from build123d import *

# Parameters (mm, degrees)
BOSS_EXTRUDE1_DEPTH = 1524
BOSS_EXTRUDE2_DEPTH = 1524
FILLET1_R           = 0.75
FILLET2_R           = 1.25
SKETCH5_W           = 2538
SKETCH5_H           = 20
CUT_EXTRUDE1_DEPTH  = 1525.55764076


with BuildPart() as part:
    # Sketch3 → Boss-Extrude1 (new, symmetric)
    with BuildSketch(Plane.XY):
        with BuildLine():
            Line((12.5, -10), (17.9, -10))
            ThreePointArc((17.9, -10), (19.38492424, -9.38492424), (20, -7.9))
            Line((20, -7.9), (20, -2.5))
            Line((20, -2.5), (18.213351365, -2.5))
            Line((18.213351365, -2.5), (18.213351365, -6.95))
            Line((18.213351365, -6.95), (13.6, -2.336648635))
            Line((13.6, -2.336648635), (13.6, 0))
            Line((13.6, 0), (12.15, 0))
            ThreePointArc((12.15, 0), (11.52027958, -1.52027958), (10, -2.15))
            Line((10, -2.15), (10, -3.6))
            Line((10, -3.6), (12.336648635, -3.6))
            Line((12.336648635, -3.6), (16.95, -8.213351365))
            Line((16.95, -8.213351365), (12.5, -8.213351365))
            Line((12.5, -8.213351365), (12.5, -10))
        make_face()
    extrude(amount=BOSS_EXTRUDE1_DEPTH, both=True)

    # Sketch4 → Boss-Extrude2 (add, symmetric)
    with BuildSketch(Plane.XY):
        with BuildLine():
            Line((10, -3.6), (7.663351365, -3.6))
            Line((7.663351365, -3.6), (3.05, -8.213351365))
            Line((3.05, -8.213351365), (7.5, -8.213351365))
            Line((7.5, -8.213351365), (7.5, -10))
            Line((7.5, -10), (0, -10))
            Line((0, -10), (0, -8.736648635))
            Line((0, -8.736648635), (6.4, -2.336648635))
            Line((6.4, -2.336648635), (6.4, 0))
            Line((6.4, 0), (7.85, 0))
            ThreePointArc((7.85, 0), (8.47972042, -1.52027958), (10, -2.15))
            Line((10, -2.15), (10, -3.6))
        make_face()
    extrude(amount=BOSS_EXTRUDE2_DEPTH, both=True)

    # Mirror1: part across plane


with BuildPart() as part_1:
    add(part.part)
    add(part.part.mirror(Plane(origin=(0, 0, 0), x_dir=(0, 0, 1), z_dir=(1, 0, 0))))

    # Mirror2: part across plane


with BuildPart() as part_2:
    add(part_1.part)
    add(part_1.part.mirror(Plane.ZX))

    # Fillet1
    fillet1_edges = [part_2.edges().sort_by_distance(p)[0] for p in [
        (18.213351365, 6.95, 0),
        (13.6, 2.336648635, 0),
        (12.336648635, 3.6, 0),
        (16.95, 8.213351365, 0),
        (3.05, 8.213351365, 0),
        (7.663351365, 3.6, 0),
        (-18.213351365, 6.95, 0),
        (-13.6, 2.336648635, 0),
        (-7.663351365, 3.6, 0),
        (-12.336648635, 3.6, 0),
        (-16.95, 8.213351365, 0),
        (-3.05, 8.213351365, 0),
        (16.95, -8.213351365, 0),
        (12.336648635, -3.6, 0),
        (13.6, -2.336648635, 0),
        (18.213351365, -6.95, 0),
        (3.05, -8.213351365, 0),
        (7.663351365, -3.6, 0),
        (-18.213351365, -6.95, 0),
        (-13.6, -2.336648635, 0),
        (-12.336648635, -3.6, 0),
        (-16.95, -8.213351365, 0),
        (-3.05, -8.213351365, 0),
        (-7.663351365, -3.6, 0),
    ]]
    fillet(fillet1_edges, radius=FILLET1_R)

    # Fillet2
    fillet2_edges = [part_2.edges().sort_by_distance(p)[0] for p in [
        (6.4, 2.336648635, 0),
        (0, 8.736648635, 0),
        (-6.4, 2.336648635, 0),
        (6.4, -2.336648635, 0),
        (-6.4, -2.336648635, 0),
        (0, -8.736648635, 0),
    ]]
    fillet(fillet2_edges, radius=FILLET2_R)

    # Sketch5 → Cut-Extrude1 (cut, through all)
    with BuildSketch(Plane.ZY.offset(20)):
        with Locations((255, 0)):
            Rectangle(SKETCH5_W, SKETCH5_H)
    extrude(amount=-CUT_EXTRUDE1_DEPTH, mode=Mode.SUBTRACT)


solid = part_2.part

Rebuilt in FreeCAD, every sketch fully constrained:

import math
import FreeCAD as App
import Part
import Sketcher

V = App.Vector
Q = App.Units.Quantity


def edges_at(feature, points):
    """Names of the edges that pass closest to the given points."""
    edges = feature.Shape.Edges
    near = lambda p: min(range(len(edges)), key=lambda i: edges[i].distToShape(Part.Vertex(*p))[0])
    return sorted({f"Edge{near(p) + 1}" for p in points})


def add_polygon(sketch, points):
    """Adds a closed chain of lines whose ends are joined by coincident constraints."""
    first, n = sketch.GeometryCount, len(points)
    for a, b in zip(points, points[1:] + points[:1]):
        sketch.addGeometry(Part.LineSegment(App.Vector(*a, 0), App.Vector(*b, 0)), False)
    for i in range(n):
        sketch.addConstraint(Sketcher.Constraint("Coincident", first + i, 2, first + (i + 1) % n, 1))

doc = App.newDocument("Part")
params = doc.addObject("Spreadsheet::Sheet", "Params")
for row, (alias, value) in enumerate([
    ("sketch1_radius", "2.1 mm"),
    ("sketch1_radius2", "2.15 mm"),
    ("sketch1_width", "5.4 mm"),
    ("sketch1_width2", "1.45 mm"),
    ("sketch1_width3", "4.45 mm"),
    ("pad1_length", "3048 mm"),
    ("sketch2_radius", "2.15 mm"),
    ("sketch2_width", "7.5 mm"),
    ("sketch2_width2", "1.45 mm"),
    ("sketch2_width3", "4.45 mm"),
    ("pad2_length", "3048 mm"),
    ("fillet_radius", "0.75 mm"),
    ("fillet2_radius", "1.25 mm"),
    ("sketch3_width", "20 mm"),
    ("sketch3_height", "2538 mm"),
], start=1):
    params.set(f"A{row}", alias)
    params.set(f"B{row}", "=" + value)
    params.setAlias(f"B{row}", alias)

body = doc.addObject("PartDesign::Body", "Body")

# Sketch on XY plane
sketch1 = body.newObject("Sketcher::SketchObject", "Sketch")
sketch1.AttachmentSupport = (doc.getObject("XY_Plane"), [""])
sketch1.MapMode = "FlatFace"
sketch1.addGeometry(Part.LineSegment(V(12.5, -10, 0), V(17.9, -10, 0)), False)
sketch1.addGeometry(Part.ArcOfCircle(Part.Circle(V(17.9, -7.9, 0), V(0, 0, 1), 2.1), math.radians(-90), math.radians(0)), False)
sketch1.addGeometry(Part.LineSegment(V(20, -7.9, 0), V(20, -2.5, 0)), False)
sketch1.addGeometry(Part.LineSegment(V(20, -2.5, 0), V(18.213351, -2.5, 0)), False)
sketch1.addGeometry(Part.LineSegment(V(18.213351, -2.5, 0), V(18.213351, -6.95, 0)), False)
sketch1.addGeometry(Part.LineSegment(V(18.213351, -6.95, 0), V(13.6, -2.336649, 0)), False)
sketch1.addGeometry(Part.LineSegment(V(13.6, -2.336649, 0), V(13.6, 0, 0)), False)
sketch1.addGeometry(Part.LineSegment(V(13.6, 0, 0), V(12.15, 0, 0)), False)
sketch1.addGeometry(Part.ArcOfCircle(Part.Circle(V(10, 0, 0), V(0, 0, 1), 2.15), math.radians(-90), math.radians(0)), False)
sketch1.addGeometry(Part.LineSegment(V(10, -2.15, 0), V(10, -3.6, 0)), False)
sketch1.addGeometry(Part.LineSegment(V(10, -3.6, 0), V(12.336649, -3.6, 0)), False)
sketch1.addGeometry(Part.LineSegment(V(12.336649, -3.6, 0), V(16.95, -8.213351, 0)), False)
sketch1.addGeometry(Part.LineSegment(V(16.95, -8.213351, 0), V(12.5, -8.213351, 0)), False)
sketch1.addGeometry(Part.LineSegment(V(12.5, -8.213351, 0), V(12.5, -10, 0)), False)
sketch1.addConstraint(Sketcher.Constraint("Tangent", 0, 2, 1, 1))
sketch1.addConstraint(Sketcher.Constraint("Tangent", 1, 2, 2, 1))
sketch1.addConstraint(Sketcher.Constraint("Coincident", 2, 2, 3, 1))
sketch1.addConstraint(Sketcher.Constraint("Coincident", 3, 2, 4, 1))
sketch1.addConstraint(Sketcher.Constraint("Coincident", 4, 2, 5, 1))
sketch1.addConstraint(Sketcher.Constraint("Coincident", 5, 2, 6, 1))
sketch1.addConstraint(Sketcher.Constraint("Coincident", 6, 2, 7, 1))
sketch1.addConstraint(Sketcher.Constraint("Coincident", 7, 2, 8, 2))
sketch1.addConstraint(Sketcher.Constraint("Coincident", 8, 1, 9, 1))
sketch1.addConstraint(Sketcher.Constraint("Coincident", 9, 2, 10, 1))
sketch1.addConstraint(Sketcher.Constraint("Coincident", 10, 2, 11, 1))
sketch1.addConstraint(Sketcher.Constraint("Coincident", 11, 2, 12, 1))
sketch1.addConstraint(Sketcher.Constraint("Coincident", 12, 2, 13, 1))
sketch1.addConstraint(Sketcher.Constraint("Coincident", 13, 2, 0, 1))
sketch1.addConstraint(Sketcher.Constraint("Horizontal", 0))
sketch1.addConstraint(Sketcher.Constraint("Vertical", 2))
sketch1.addConstraint(Sketcher.Constraint("Horizontal", 3))
sketch1.addConstraint(Sketcher.Constraint("Vertical", 4))
sketch1.addConstraint(Sketcher.Constraint("Vertical", 6))
sketch1.addConstraint(Sketcher.Constraint("Horizontal", 7))
sketch1.addConstraint(Sketcher.Constraint("Vertical", 9))
sketch1.addConstraint(Sketcher.Constraint("Horizontal", 10))
sketch1.addConstraint(Sketcher.Constraint("Horizontal", 12))
sketch1.addConstraint(Sketcher.Constraint("Vertical", 13))
sketch1.addConstraint(Sketcher.Constraint("PointOnObject", 8, 3, -1))
sketch1.addConstraint(Sketcher.Constraint("PointOnObject", 6, 2, -1))
sketch1.addConstraint(Sketcher.Constraint("Parallel", 5, 11))
sketch1.addConstraint(Sketcher.Constraint("Equal", 0, 2))
sketch1.addConstraint(Sketcher.Constraint("Equal", 12, 4))
sketch1.addConstraint(Sketcher.Constraint("Equal", 10, 6))
sketch1.addConstraint(Sketcher.Constraint("Equal", 7, 9))
sketch1.addConstraint(Sketcher.Constraint("Equal", 3, 13))
sketch1.addConstraint(Sketcher.Constraint("Equal", 5, 11))
sketch1.addConstraint(Sketcher.Constraint("Radius", 1, Q("2.1 mm")))
sketch1.addConstraint(Sketcher.Constraint("Angle", 5, Q("135 deg")))
sketch1.addConstraint(Sketcher.Constraint("Radius", 8, Q("2.15 mm")))
sketch1.addConstraint(Sketcher.Constraint("DistanceX", 0, 1, 0, 2, Q("5.4 mm")))
sketch1.addConstraint(Sketcher.Constraint("DistanceX", -1, 1, 8, 3, Q("10 mm")))
sketch1.addConstraint(Sketcher.Constraint("DistanceY", 0, 2, -1, 1, Q("10 mm")))
sketch1.addConstraint(Sketcher.Constraint("DistanceX", 7, 2, 7, 1, Q("1.45 mm")))
sketch1.addConstraint(Sketcher.Constraint("DistanceX", 12, 2, 12, 1, Q("4.45 mm")))
sketch1.addConstraint(Sketcher.Constraint("DistanceX", 3, 2, 3, 1, Q("1.786649 mm")))
sketch1.setExpression("Constraints[33]", "Params.sketch1_radius")
sketch1.setExpression("Constraints[35]", "Params.sketch1_radius2")
sketch1.setExpression("Constraints[36]", "Params.sketch1_width")
sketch1.setExpression("Constraints[39]", "Params.sketch1_width2")
sketch1.setExpression("Constraints[40]", "Params.sketch1_width3")
pad1 = body.newObject("PartDesign::Pad", "Pad")
pad1.Profile = sketch1
pad1.setExpression("Length", "Params.pad1_length")
pad1.Midplane = True

# Sketch on XY plane
sketch2 = body.newObject("Sketcher::SketchObject", "Sketch001")
sketch2.AttachmentSupport = (doc.getObject("XY_Plane"), [""])
sketch2.MapMode = "FlatFace"
sketch2.addGeometry(Part.LineSegment(V(7.663351, -3.6, 0), V(10, -3.6, 0)), False)
sketch2.addGeometry(Part.LineSegment(V(10, -3.6, 0), V(10, -2.15, 0)), False)
sketch2.addGeometry(Part.ArcOfCircle(Part.Circle(V(10, 0, 0), V(0, 0, 1), 2.15), math.radians(180), math.radians(270)), False)
sketch2.addGeometry(Part.LineSegment(V(7.85, 0, 0), V(6.4, 0, 0)), False)
sketch2.addGeometry(Part.LineSegment(V(6.4, 0, 0), V(6.4, -2.336649, 0)), False)
sketch2.addGeometry(Part.LineSegment(V(6.4, -2.336649, 0), V(0, -8.736649, 0)), False)
sketch2.addGeometry(Part.LineSegment(V(0, -8.736649, 0), V(0, -10, 0)), False)
sketch2.addGeometry(Part.LineSegment(V(0, -10, 0), V(7.5, -10, 0)), False)
sketch2.addGeometry(Part.LineSegment(V(7.5, -10, 0), V(7.5, -8.213351, 0)), False)
sketch2.addGeometry(Part.LineSegment(V(7.5, -8.213351, 0), V(3.05, -8.213351, 0)), False)
sketch2.addGeometry(Part.LineSegment(V(3.05, -8.213351, 0), V(7.663351, -3.6, 0)), False)
sketch2.addConstraint(Sketcher.Constraint("Coincident", 0, 2, 1, 1))
sketch2.addConstraint(Sketcher.Constraint("Coincident", 1, 2, 2, 2))
sketch2.addConstraint(Sketcher.Constraint("Coincident", 2, 1, 3, 1))
sketch2.addConstraint(Sketcher.Constraint("Coincident", 3, 2, 4, 1))
sketch2.addConstraint(Sketcher.Constraint("Coincident", 4, 2, 5, 1))
sketch2.addConstraint(Sketcher.Constraint("Coincident", 5, 2, 6, 1))
sketch2.addConstraint(Sketcher.Constraint("Coincident", 6, 2, 7, 1))
sketch2.addConstraint(Sketcher.Constraint("Coincident", 7, 2, 8, 1))
sketch2.addConstraint(Sketcher.Constraint("Coincident", 8, 2, 9, 1))
sketch2.addConstraint(Sketcher.Constraint("Coincident", 9, 2, 10, 1))
sketch2.addConstraint(Sketcher.Constraint("Coincident", 10, 2, 0, 1))
sketch2.addConstraint(Sketcher.Constraint("Horizontal", 0))
sketch2.addConstraint(Sketcher.Constraint("Vertical", 1))
sketch2.addConstraint(Sketcher.Constraint("Horizontal", 3))
sketch2.addConstraint(Sketcher.Constraint("Vertical", 4))
sketch2.addConstraint(Sketcher.Constraint("Vertical", 6))
sketch2.addConstraint(Sketcher.Constraint("Horizontal", 7))
sketch2.addConstraint(Sketcher.Constraint("Vertical", 8))
sketch2.addConstraint(Sketcher.Constraint("Horizontal", 9))
sketch2.addConstraint(Sketcher.Constraint("PointOnObject", 2, 3, -1))
sketch2.addConstraint(Sketcher.Constraint("PointOnObject", 2, 1, -1))
sketch2.addConstraint(Sketcher.Constraint("PointOnObject", 5, 2, -2))
sketch2.addConstraint(Sketcher.Constraint("Parallel", 5, 10))
sketch2.addConstraint(Sketcher.Constraint("Vertical", 2, 3, 0, 2))
sketch2.addConstraint(Sketcher.Constraint("Equal", 3, 1))
sketch2.addConstraint(Sketcher.Constraint("Equal", 0, 4))
sketch2.addConstraint(Sketcher.Constraint("Angle", 5, Q("-135 deg")))
sketch2.addConstraint(Sketcher.Constraint("Radius", 2, Q("2.15 mm")))
sketch2.addConstraint(Sketcher.Constraint("DistanceX", 7, 1, 7, 2, Q("7.5 mm")))
sketch2.addConstraint(Sketcher.Constraint("DistanceX", -1, 1, 2, 3, Q("10 mm")))
sketch2.addConstraint(Sketcher.Constraint("DistanceY", 6, 2, -1, 1, Q("10 mm")))
sketch2.addConstraint(Sketcher.Constraint("DistanceX", 3, 2, 3, 1, Q("1.45 mm")))
sketch2.addConstraint(Sketcher.Constraint("DistanceX", 9, 2, 9, 1, Q("4.45 mm")))
sketch2.addConstraint(Sketcher.Constraint("DistanceX", 0, 1, 0, 2, Q("2.336649 mm")))
sketch2.setExpression("Constraints[27]", "Params.sketch2_radius")
sketch2.setExpression("Constraints[28]", "Params.sketch2_width")
sketch2.setExpression("Constraints[31]", "Params.sketch2_width2")
sketch2.setExpression("Constraints[32]", "Params.sketch2_width3")
pad2 = body.newObject("PartDesign::Pad", "Pad001")
pad2.Profile = sketch2
pad2.setExpression("Length", "Params.pad2_length")
pad2.Midplane = True
body2 = doc.addObject("PartDesign::Body", "Body001")
doc.recompute()

body2.BaseFeature = body
doc.recompute()

mirroring = doc.addObject("Part::Mirroring", "Mirroring")
mirroring.Source = body
mirroring.Base = V(0, 0, 0)
mirroring.Normal = V(1, 0, 0)
body3 = doc.addObject("PartDesign::Body", "Body002")
body3.BaseFeature = mirroring
boolean = body2.newObject("PartDesign::Boolean", "Boolean")
boolean.Type = "Fuse"
boolean.addObjects([body3])
doc.recompute()
body4 = doc.addObject("PartDesign::Body", "Body003")
doc.recompute()

body4.BaseFeature = body2
doc.recompute()

mirroring2 = doc.addObject("Part::Mirroring", "Mirroring001")
mirroring2.Source = body2
mirroring2.Base = V(0, 0, 0)
mirroring2.Normal = V(0, 1, 0)
body5 = doc.addObject("PartDesign::Body", "Body004")
body5.BaseFeature = mirroring2
boolean2 = body4.newObject("PartDesign::Boolean", "Boolean001")
boolean2.Type = "Fuse"
boolean2.addObjects([body5])
doc.recompute()

fillet = body4.newObject("PartDesign::Fillet", "Fillet")
fillet.Base = (boolean2, edges_at(boolean2, [
    (18.213, 6.95, 0),
    (13.6, 2.337, 0),
    (12.337, 3.6, 0),
    (16.95, 8.213, 0),
    (3.05, 8.213, 0),
    (7.663, 3.6, 0),
    (-18.213, 6.95, 0),
    (-13.6, 2.337, 0),
    (-7.663, 3.6, 0),
    (-12.337, 3.6, 0),
    (-16.95, 8.213, 0),
    (-3.05, 8.213, 0),
    (16.95, -8.213, 0),
    (12.337, -3.6, 0),
    (13.6, -2.337, 0),
    (18.213, -6.95, 0),
    (3.05, -8.213, 0),
    (7.663, -3.6, 0),
    (-18.213, -6.95, 0),
    (-13.6, -2.337, 0),
    (-12.337, -3.6, 0),
    (-16.95, -8.213, 0),
    (-3.05, -8.213, 0),
    (-7.663, -3.6, 0),
]))
fillet.setExpression("Radius", "Params.fillet_radius")
doc.recompute()

fillet2 = body4.newObject("PartDesign::Fillet", "Fillet001")
fillet2.Base = (fillet, edges_at(fillet, [
    (6.4, 2.337, 0),
    (0, 8.737, 0),
    (-6.4, 2.337, 0),
    (6.4, -2.337, 0),
    (-6.4, -2.337, 0),
    (0, -8.737, 0),
]))
fillet2.setExpression("Radius", "Params.fillet2_radius")

# Sketch on YZ plane
sketch3 = body4.newObject("Sketcher::SketchObject", "Sketch002")
sketch3.AttachmentSupport = (doc.getObject("YZ_Plane003"), [""])
sketch3.MapMode = "FlatFace"
sketch3.AttachmentOffset = App.Placement(V(0, 0, -20), App.Rotation())
add_polygon(sketch3, [(10, -1014), (-10, -1014), (-10, 1524), (10, 1524)])  # lines 0-3
sketch3.addConstraint(Sketcher.Constraint("Horizontal", 0))
sketch3.addConstraint(Sketcher.Constraint("Vertical", 1))
sketch3.addConstraint(Sketcher.Constraint("Horizontal", 2))
sketch3.addConstraint(Sketcher.Constraint("Vertical", 3))
sketch3.addConstraint(Sketcher.Constraint("DistanceX", 0, 2, 0, 1, Q("20 mm")))
sketch3.addConstraint(Sketcher.Constraint("DistanceY", 1, 1, 1, 2, Q("2538 mm")))
sketch3.addConstraint(Sketcher.Constraint("DistanceX", 0, 2, -1, 1, Q("10 mm")))
sketch3.addConstraint(Sketcher.Constraint("DistanceY", 0, 2, -1, 1, Q("1014 mm")))
sketch3.setExpression("Constraints[8]", "Params.sketch3_width")
sketch3.setExpression("Constraints[9]", "Params.sketch3_height")
pocket1 = body4.newObject("PartDesign::Pocket", "Pocket")
pocket1.Profile = sketch3
pocket1.Type = "ThroughAll"
pocket1.Reversed = True
mirroring.Visibility = False
mirroring2.Visibility = False

doc.recompute()
